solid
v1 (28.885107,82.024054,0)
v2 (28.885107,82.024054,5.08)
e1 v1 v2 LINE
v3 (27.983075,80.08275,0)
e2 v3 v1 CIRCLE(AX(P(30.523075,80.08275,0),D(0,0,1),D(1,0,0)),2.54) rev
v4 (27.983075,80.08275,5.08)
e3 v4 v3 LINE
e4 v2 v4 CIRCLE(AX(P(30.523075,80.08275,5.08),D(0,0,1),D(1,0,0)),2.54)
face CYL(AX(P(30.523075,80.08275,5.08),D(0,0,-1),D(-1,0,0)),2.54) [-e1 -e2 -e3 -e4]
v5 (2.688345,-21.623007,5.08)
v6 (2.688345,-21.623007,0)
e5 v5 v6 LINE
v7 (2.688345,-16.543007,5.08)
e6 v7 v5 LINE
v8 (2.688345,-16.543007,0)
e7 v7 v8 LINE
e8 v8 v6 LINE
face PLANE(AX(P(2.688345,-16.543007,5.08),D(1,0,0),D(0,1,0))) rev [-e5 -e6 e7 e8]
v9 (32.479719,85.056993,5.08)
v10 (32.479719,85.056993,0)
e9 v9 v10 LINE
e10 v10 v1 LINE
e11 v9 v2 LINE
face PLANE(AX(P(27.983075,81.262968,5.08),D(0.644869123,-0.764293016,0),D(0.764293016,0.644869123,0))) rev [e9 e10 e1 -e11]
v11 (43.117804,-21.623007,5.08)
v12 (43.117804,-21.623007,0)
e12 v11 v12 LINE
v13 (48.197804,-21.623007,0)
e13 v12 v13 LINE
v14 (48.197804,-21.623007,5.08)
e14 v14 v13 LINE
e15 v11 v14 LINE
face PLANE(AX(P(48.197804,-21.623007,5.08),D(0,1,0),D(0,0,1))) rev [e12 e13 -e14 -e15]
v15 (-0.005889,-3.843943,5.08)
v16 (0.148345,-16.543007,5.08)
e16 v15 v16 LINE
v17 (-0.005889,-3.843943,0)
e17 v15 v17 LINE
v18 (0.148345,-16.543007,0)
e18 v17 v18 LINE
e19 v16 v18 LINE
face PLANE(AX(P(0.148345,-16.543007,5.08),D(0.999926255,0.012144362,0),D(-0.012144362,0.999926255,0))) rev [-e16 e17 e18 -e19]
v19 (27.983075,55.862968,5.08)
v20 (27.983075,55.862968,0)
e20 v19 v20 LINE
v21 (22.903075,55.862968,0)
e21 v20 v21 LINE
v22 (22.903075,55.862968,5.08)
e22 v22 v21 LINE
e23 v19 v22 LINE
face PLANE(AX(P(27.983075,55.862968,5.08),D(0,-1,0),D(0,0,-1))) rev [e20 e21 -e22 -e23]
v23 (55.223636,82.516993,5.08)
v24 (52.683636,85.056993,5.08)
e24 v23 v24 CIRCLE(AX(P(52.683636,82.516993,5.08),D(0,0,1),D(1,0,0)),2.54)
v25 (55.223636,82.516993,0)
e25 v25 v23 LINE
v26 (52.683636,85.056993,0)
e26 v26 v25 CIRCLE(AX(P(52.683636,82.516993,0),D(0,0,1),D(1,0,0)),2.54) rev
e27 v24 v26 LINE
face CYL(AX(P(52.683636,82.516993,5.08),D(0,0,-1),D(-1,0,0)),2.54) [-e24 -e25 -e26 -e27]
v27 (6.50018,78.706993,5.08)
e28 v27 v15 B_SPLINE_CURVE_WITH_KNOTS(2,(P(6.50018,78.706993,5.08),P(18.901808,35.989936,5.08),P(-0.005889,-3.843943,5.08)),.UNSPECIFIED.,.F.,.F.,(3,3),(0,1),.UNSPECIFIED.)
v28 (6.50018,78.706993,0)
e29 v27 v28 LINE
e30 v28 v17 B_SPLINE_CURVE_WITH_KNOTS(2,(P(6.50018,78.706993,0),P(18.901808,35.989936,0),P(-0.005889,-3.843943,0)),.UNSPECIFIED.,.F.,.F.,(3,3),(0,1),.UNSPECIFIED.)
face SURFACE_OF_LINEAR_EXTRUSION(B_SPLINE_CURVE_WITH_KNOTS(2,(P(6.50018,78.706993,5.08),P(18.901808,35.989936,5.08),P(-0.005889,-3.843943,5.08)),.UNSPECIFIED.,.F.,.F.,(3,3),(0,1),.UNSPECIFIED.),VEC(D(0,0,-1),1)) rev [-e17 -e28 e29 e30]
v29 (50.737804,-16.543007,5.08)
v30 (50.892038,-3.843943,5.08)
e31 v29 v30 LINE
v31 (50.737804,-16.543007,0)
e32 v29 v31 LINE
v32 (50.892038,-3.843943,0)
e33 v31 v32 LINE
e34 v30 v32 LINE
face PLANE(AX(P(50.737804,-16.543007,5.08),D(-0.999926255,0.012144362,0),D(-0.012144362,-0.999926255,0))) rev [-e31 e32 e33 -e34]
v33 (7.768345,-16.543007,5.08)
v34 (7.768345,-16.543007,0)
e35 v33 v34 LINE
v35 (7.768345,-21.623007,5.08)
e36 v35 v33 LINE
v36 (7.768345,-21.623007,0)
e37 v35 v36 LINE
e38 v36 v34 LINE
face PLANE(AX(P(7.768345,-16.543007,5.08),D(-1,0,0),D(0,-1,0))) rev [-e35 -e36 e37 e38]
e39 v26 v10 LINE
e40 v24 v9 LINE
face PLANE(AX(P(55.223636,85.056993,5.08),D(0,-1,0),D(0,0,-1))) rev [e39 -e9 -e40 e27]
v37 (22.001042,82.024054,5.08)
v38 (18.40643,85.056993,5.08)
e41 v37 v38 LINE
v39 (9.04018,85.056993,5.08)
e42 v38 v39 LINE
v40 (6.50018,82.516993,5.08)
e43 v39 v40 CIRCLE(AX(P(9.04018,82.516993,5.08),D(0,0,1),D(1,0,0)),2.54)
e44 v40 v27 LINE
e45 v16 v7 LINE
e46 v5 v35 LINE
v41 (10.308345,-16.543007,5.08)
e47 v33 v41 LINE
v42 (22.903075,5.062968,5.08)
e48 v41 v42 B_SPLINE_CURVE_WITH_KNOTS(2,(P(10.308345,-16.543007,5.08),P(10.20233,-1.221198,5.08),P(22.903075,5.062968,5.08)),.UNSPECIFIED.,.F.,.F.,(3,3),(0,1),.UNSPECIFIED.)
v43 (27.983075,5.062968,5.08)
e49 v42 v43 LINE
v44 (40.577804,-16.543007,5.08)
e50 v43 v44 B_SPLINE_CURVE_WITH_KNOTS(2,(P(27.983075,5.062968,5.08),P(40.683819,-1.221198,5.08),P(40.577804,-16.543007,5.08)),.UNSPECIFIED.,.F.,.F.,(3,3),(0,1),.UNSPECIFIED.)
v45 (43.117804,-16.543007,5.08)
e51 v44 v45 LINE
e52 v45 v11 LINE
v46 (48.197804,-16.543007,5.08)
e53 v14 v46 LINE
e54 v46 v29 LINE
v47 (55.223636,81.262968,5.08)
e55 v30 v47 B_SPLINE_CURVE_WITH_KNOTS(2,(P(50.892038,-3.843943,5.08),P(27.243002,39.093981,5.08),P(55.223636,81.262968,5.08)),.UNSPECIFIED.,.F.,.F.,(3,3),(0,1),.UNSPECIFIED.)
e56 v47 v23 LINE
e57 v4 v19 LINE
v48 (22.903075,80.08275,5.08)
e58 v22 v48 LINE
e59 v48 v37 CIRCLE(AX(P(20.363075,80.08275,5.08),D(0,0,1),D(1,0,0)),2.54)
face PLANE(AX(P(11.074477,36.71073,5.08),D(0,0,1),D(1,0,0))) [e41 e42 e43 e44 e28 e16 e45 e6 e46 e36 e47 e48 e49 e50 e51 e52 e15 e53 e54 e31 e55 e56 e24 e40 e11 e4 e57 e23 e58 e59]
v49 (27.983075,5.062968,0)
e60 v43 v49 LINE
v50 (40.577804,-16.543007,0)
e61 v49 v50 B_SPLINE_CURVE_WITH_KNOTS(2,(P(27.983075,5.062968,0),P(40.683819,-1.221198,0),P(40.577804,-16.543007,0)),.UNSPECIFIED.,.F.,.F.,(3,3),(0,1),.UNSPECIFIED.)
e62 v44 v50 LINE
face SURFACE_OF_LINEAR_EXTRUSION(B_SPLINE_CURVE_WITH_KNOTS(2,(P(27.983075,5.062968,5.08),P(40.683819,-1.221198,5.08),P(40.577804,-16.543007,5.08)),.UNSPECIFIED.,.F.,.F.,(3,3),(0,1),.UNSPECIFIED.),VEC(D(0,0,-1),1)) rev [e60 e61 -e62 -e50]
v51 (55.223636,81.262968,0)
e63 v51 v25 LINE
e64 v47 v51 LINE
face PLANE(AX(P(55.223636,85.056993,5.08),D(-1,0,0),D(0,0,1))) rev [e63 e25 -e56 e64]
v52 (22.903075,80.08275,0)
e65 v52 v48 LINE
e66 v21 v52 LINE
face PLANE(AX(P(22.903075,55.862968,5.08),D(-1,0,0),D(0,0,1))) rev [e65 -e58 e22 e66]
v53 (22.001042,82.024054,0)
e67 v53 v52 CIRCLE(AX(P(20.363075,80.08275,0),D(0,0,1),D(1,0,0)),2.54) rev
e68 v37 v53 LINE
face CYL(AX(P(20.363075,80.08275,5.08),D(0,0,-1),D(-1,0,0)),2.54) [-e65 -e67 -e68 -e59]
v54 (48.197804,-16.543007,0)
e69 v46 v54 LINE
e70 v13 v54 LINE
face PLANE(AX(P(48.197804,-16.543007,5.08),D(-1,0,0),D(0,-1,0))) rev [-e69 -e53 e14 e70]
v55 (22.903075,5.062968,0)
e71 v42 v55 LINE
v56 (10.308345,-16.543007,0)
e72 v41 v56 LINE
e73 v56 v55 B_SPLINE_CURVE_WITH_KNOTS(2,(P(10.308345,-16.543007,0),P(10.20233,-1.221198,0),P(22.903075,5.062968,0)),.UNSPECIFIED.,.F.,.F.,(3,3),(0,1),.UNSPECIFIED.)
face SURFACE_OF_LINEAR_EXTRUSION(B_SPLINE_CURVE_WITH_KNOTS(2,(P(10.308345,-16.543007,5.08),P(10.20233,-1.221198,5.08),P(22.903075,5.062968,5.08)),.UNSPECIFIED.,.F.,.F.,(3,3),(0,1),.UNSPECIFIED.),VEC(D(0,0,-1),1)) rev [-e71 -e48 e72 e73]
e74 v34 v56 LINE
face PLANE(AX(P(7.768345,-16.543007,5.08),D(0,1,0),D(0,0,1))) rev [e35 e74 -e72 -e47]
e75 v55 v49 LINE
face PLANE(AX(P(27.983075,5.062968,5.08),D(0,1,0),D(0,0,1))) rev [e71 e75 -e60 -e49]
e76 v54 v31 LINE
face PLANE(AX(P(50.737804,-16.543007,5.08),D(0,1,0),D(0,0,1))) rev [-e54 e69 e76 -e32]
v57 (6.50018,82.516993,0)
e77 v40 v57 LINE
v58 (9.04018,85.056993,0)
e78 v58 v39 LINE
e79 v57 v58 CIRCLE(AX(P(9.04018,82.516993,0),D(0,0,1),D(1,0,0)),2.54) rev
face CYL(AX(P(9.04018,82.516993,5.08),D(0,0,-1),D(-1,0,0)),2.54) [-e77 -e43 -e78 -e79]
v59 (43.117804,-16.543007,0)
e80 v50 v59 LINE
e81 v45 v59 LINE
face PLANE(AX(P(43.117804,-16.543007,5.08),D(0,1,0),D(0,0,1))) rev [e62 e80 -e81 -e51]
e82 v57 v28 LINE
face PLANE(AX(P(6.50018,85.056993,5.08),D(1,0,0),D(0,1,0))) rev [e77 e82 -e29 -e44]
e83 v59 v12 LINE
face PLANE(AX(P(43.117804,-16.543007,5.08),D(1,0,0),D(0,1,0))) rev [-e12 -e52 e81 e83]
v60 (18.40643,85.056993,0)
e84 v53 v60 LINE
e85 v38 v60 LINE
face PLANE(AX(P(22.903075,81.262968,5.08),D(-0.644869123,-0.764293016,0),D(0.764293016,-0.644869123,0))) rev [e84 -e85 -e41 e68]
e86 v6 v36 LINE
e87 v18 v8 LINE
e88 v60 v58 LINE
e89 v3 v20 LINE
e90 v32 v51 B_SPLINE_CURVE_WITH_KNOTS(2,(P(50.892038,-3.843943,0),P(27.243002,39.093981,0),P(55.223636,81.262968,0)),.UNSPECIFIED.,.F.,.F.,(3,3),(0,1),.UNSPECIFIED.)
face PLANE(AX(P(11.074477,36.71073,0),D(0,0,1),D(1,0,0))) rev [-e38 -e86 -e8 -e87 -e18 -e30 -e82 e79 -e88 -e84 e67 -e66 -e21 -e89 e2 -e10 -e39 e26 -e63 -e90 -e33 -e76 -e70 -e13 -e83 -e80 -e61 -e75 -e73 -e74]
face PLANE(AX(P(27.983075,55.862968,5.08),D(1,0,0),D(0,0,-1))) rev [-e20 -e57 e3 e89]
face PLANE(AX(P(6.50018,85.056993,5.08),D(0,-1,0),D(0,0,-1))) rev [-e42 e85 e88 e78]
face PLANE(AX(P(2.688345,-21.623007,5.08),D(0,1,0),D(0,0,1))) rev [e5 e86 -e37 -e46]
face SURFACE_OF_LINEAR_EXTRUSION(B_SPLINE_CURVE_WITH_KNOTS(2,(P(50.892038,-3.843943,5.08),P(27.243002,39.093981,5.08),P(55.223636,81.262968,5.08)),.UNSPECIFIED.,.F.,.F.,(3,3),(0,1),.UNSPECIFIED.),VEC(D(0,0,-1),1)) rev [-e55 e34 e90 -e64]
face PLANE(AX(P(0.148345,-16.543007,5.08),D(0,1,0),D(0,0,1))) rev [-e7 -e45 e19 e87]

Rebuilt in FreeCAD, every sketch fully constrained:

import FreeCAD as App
import Part
import Sketcher
from FreeCAD import Vector
Q = App.Units.Quantity


def edges_at(feature, points):
    """Names of the edges that pass closest to the given points."""
    edges = feature.Shape.Edges
    near = lambda p: min(range(len(edges)), key=lambda i: edges[i].distToShape(Part.Vertex(*p))[0])
    return sorted({f"Edge{near(p) + 1}" for p in points})

doc = App.newDocument("Part")
body = doc.addObject("PartDesign::Body", "Body")

sketch1 = body.newObject("Sketcher::SketchObject", "Sketch")
sketch1.AttachmentSupport = (doc.getObject("XY_Plane"), [""])
sketch1.MapMode = "FlatFace"
sketch1.addGeometry([
    Part.LineSegment(Vector(-0.005889, -3.843943, 0), Vector(0.148345, -16.543007, 0)),
    Part.LineSegment(Vector(0.148345, -16.543007, 0), Vector(2.688345, -16.543007, 0)),
    Part.LineSegment(Vector(2.688345, -16.543007, 0), Vector(2.688345, -21.623007, 0)),
    Part.LineSegment(Vector(2.688345, -21.623007, 0), Vector(7.768345, -21.623007, 0)),
    Part.LineSegment(Vector(7.768345, -21.623007, 0), Vector(7.768345, -16.543007, 0)),
    Part.LineSegment(Vector(7.768345, -16.543007, 0), Vector(10.308345, -16.543007, 0)),
    Part.BSplineCurve([Vector(22.903075, 5.062968, 0), Vector(10.20233, -1.221198, 0), Vector(10.308345, -16.543007, 0)], [3, 3], [0, 1], False, 2, [1, 1, 1], False),
    Part.LineSegment(Vector(22.903075, 5.062968, 0), Vector(27.983075, 5.062968, 0)),
    Part.BSplineCurve([Vector(27.983075, 5.062968, 0), Vector(40.683819, -1.221198, 0), Vector(40.577804, -16.543007, 0)], [3, 3], [0, 1], False, 2, [1, 1, 1], False),
    Part.LineSegment(Vector(40.577804, -16.543007, 0), Vector(43.117804, -16.543007, 0)),
    Part.LineSegment(Vector(43.117804, -16.543007, 0), Vector(43.117804, -21.623007, 0)),
    Part.LineSegment(Vector(43.117804, -21.623007, 0), Vector(48.197804, -21.623007, 0)),
    Part.LineSegment(Vector(48.197804, -21.623007, 0), Vector(48.197804, -16.543007, 0)),
    Part.LineSegment(Vector(48.197804, -16.543007, 0), Vector(50.737804, -16.543007, 0)),
    Part.LineSegment(Vector(50.737804, -16.543007, 0), Vector(50.892038, -3.843943, 0)),
    Part.BSplineCurve([Vector(55.223636, 81.262968, 0), Vector(27.243002, 39.093981, 0), Vector(50.892038, -3.843943, 0)], [3, 3], [0, 1], False, 2, [1, 1, 1], False),
    Part.LineSegment(Vector(55.223636, 81.262968, 0), Vector(55.223636, 85.056993, 0)),
    Part.LineSegment(Vector(55.223636, 85.056993, 0), Vector(32.479719, 85.056993, 0)),
    Part.LineSegment(Vector(32.479719, 85.056993, 0), Vector(27.983075, 81.262968, 0)),
    Part.LineSegment(Vector(27.983075, 81.262968, 0), Vector(27.983075, 55.862968, 0)),
    Part.LineSegment(Vector(27.983075, 55.862968, 0), Vector(22.903075, 55.862968, 0)),
    Part.LineSegment(Vector(22.903075, 55.862968, 0), Vector(22.903075, 81.262968, 0)),
    Part.LineSegment(Vector(22.903075, 81.262968, 0), Vector(18.40643, 85.056993, 0)),
    Part.LineSegment(Vector(18.40643, 85.056993, 0), Vector(6.50018, 85.056993, 0)),
    Part.LineSegment(Vector(6.50018, 85.056993, 0), Vector(6.50018, 78.706993, 0)),
    Part.BSplineCurve([Vector(6.50018, 78.706993, 0), Vector(18.901808, 35.989936, 0), Vector(-0.005889, -3.843943, 0)], [3, 3], [0, 1], False, 2, [1, 1, 1], False),
], False)
sketch1.addConstraint([
    Sketcher.Constraint("Block", 6),
    Sketcher.Constraint("Block", 8),
    Sketcher.Constraint("Block", 15),
    Sketcher.Constraint("Block", 25),
    Sketcher.Constraint("Coincident", 0, 2, 1, 1),
    Sketcher.Constraint("Coincident", 1, 2, 2, 1),
    Sketcher.Constraint("Coincident", 2, 2, 3, 1),
    Sketcher.Constraint("Coincident", 3, 2, 4, 1),
    Sketcher.Constraint("Coincident", 4, 2, 5, 1),
    Sketcher.Constraint("Coincident", 5, 2, 6, 2),
    Sketcher.Constraint("Coincident", 6, 1, 7, 1),
    Sketcher.Constraint("Coincident", 7, 2, 8, 1),
    Sketcher.Constraint("Coincident", 8, 2, 9, 1),
    Sketcher.Constraint("Coincident", 9, 2, 10, 1),
    Sketcher.Constraint("Coincident", 10, 2, 11, 1),
    Sketcher.Constraint("Coincident", 11, 2, 12, 1),
    Sketcher.Constraint("Coincident", 12, 2, 13, 1),
    Sketcher.Constraint("Coincident", 13, 2, 14, 1),
    Sketcher.Constraint("Coincident", 14, 2, 15, 2),
    Sketcher.Constraint("Coincident", 15, 1, 16, 1),
    Sketcher.Constraint("Coincident", 16, 2, 17, 1),
    Sketcher.Constraint("Coincident", 17, 2, 18, 1),
    Sketcher.Constraint("Coincident", 18, 2, 19, 1),
    Sketcher.Constraint("Coincident", 19, 2, 20, 1),
    Sketcher.Constraint("Coincident", 20, 2, 21, 1),
    Sketcher.Constraint("Coincident", 21, 2, 22, 1),
    Sketcher.Constraint("Coincident", 22, 2, 23, 1),
    Sketcher.Constraint("Coincident", 23, 2, 24, 1),
    Sketcher.Constraint("Coincident", 24, 2, 25, 1),
    Sketcher.Constraint("Coincident", 25, 2, 0, 1),
    Sketcher.Constraint("Horizontal", 1),
    Sketcher.Constraint("Vertical", 2),
    Sketcher.Constraint("Horizontal", 3),
    Sketcher.Constraint("Vertical", 4),
    Sketcher.Constraint("Horizontal", 5),
    Sketcher.Constraint("Horizontal", 9),
    Sketcher.Constraint("Vertical", 10),
    Sketcher.Constraint("Horizontal", 11),
    Sketcher.Constraint("Vertical", 12),
    Sketcher.Constraint("Horizontal", 13),
    Sketcher.Constraint("Vertical", 16),
    Sketcher.Constraint("Horizontal", 17),
    Sketcher.Constraint("Vertical", 19),
    Sketcher.Constraint("Horizontal", 20),
    Sketcher.Constraint("Vertical", 21),
    Sketcher.Constraint("Horizontal", 23),
    Sketcher.Constraint("Vertical", 24),
    Sketcher.Constraint("DistanceY", 19, 2, 19, 1, Q("1 in")),
    Sketcher.Constraint("DistanceY", 21, 1, 21, 2, Q("1 in")),
    Sketcher.Constraint("DistanceX", 1, 1, 1, 2, Q("0.1 in")),
    Sketcher.Constraint("DistanceX", 3, 1, 3, 2, Q("0.2 in")),
    Sketcher.Constraint("DistanceX", 5, 1, 5, 2, Q("0.1 in")),
    Sketcher.Constraint("DistanceX", 9, 1, 9, 2, Q("0.1 in")),
    Sketcher.Constraint("DistanceX", 11, 1, 11, 2, Q("0.2 in")),
    Sketcher.Constraint("DistanceX", 13, 1, 13, 2, Q("0.1 in")),
    Sketcher.Constraint("DistanceX", 20, 2, 20, 1, Q("0.2 in")),
    Sketcher.Constraint("DistanceY", 2, 2, 2, 1, Q("0.2 in")),
    Sketcher.Constraint("DistanceY", 4, 1, 4, 2, Q("0.2 in")),
    Sketcher.Constraint("DistanceY", 10, 2, 10, 1, Q("0.2 in")),
    Sketcher.Constraint("DistanceY", 12, 1, 12, 2, Q("0.2 in")),
    Sketcher.Constraint("DistanceY", 13, 2, 16, 2, Q("4 in")),
    Sketcher.Constraint("DistanceY", 7, 2, 18, 2, Q("3 in")),
    Sketcher.Constraint("DistanceY", 24, 2, 24, 1, Q("0.25 in")),
    Sketcher.Constraint("DistanceX", 20, 2, 7, 2, Q("0.2 in")),
    Sketcher.Constraint("DistanceX", 23, 2, 23, 1, Q("0.46875 in")),
    Sketcher.Constraint("DistanceX", 17, 2, 17, 1, Q("22.743918 mm")),
])
pad1 = body.newObject("PartDesign::Pad", "Pad")
pad1.Profile = sketch1
pad1.Length = Q("0.2 in")
doc.recompute()

fillet = body.newObject("PartDesign::Fillet", "Fillet")
fillet.Base = (pad1, edges_at(pad1, [(22.903, 81.263, 2.54)]))
fillet.Radius = Q("0.1 in")
doc.recompute()

fillet2 = body.newObject("PartDesign::Fillet", "Fillet001")
fillet2.Base = (fillet, edges_at(fillet, [(27.983, 81.263, 2.54)]))
fillet2.Radius = Q("0.1 in")
doc.recompute()

fillet3 = body.newObject("PartDesign::Fillet", "Fillet002")
fillet3.Base = (fillet2, edges_at(fillet2, [(6.5, 85.057, 2.54)]))
fillet3.Radius = Q("0.1 in")
doc.recompute()

fillet4 = body.newObject("PartDesign::Fillet", "Fillet003")
fillet4.Base = (fillet3, edges_at(fillet3, [(55.224, 85.057, 2.54)]))
fillet4.Radius = Q("0.1 in")

doc.recompute()
